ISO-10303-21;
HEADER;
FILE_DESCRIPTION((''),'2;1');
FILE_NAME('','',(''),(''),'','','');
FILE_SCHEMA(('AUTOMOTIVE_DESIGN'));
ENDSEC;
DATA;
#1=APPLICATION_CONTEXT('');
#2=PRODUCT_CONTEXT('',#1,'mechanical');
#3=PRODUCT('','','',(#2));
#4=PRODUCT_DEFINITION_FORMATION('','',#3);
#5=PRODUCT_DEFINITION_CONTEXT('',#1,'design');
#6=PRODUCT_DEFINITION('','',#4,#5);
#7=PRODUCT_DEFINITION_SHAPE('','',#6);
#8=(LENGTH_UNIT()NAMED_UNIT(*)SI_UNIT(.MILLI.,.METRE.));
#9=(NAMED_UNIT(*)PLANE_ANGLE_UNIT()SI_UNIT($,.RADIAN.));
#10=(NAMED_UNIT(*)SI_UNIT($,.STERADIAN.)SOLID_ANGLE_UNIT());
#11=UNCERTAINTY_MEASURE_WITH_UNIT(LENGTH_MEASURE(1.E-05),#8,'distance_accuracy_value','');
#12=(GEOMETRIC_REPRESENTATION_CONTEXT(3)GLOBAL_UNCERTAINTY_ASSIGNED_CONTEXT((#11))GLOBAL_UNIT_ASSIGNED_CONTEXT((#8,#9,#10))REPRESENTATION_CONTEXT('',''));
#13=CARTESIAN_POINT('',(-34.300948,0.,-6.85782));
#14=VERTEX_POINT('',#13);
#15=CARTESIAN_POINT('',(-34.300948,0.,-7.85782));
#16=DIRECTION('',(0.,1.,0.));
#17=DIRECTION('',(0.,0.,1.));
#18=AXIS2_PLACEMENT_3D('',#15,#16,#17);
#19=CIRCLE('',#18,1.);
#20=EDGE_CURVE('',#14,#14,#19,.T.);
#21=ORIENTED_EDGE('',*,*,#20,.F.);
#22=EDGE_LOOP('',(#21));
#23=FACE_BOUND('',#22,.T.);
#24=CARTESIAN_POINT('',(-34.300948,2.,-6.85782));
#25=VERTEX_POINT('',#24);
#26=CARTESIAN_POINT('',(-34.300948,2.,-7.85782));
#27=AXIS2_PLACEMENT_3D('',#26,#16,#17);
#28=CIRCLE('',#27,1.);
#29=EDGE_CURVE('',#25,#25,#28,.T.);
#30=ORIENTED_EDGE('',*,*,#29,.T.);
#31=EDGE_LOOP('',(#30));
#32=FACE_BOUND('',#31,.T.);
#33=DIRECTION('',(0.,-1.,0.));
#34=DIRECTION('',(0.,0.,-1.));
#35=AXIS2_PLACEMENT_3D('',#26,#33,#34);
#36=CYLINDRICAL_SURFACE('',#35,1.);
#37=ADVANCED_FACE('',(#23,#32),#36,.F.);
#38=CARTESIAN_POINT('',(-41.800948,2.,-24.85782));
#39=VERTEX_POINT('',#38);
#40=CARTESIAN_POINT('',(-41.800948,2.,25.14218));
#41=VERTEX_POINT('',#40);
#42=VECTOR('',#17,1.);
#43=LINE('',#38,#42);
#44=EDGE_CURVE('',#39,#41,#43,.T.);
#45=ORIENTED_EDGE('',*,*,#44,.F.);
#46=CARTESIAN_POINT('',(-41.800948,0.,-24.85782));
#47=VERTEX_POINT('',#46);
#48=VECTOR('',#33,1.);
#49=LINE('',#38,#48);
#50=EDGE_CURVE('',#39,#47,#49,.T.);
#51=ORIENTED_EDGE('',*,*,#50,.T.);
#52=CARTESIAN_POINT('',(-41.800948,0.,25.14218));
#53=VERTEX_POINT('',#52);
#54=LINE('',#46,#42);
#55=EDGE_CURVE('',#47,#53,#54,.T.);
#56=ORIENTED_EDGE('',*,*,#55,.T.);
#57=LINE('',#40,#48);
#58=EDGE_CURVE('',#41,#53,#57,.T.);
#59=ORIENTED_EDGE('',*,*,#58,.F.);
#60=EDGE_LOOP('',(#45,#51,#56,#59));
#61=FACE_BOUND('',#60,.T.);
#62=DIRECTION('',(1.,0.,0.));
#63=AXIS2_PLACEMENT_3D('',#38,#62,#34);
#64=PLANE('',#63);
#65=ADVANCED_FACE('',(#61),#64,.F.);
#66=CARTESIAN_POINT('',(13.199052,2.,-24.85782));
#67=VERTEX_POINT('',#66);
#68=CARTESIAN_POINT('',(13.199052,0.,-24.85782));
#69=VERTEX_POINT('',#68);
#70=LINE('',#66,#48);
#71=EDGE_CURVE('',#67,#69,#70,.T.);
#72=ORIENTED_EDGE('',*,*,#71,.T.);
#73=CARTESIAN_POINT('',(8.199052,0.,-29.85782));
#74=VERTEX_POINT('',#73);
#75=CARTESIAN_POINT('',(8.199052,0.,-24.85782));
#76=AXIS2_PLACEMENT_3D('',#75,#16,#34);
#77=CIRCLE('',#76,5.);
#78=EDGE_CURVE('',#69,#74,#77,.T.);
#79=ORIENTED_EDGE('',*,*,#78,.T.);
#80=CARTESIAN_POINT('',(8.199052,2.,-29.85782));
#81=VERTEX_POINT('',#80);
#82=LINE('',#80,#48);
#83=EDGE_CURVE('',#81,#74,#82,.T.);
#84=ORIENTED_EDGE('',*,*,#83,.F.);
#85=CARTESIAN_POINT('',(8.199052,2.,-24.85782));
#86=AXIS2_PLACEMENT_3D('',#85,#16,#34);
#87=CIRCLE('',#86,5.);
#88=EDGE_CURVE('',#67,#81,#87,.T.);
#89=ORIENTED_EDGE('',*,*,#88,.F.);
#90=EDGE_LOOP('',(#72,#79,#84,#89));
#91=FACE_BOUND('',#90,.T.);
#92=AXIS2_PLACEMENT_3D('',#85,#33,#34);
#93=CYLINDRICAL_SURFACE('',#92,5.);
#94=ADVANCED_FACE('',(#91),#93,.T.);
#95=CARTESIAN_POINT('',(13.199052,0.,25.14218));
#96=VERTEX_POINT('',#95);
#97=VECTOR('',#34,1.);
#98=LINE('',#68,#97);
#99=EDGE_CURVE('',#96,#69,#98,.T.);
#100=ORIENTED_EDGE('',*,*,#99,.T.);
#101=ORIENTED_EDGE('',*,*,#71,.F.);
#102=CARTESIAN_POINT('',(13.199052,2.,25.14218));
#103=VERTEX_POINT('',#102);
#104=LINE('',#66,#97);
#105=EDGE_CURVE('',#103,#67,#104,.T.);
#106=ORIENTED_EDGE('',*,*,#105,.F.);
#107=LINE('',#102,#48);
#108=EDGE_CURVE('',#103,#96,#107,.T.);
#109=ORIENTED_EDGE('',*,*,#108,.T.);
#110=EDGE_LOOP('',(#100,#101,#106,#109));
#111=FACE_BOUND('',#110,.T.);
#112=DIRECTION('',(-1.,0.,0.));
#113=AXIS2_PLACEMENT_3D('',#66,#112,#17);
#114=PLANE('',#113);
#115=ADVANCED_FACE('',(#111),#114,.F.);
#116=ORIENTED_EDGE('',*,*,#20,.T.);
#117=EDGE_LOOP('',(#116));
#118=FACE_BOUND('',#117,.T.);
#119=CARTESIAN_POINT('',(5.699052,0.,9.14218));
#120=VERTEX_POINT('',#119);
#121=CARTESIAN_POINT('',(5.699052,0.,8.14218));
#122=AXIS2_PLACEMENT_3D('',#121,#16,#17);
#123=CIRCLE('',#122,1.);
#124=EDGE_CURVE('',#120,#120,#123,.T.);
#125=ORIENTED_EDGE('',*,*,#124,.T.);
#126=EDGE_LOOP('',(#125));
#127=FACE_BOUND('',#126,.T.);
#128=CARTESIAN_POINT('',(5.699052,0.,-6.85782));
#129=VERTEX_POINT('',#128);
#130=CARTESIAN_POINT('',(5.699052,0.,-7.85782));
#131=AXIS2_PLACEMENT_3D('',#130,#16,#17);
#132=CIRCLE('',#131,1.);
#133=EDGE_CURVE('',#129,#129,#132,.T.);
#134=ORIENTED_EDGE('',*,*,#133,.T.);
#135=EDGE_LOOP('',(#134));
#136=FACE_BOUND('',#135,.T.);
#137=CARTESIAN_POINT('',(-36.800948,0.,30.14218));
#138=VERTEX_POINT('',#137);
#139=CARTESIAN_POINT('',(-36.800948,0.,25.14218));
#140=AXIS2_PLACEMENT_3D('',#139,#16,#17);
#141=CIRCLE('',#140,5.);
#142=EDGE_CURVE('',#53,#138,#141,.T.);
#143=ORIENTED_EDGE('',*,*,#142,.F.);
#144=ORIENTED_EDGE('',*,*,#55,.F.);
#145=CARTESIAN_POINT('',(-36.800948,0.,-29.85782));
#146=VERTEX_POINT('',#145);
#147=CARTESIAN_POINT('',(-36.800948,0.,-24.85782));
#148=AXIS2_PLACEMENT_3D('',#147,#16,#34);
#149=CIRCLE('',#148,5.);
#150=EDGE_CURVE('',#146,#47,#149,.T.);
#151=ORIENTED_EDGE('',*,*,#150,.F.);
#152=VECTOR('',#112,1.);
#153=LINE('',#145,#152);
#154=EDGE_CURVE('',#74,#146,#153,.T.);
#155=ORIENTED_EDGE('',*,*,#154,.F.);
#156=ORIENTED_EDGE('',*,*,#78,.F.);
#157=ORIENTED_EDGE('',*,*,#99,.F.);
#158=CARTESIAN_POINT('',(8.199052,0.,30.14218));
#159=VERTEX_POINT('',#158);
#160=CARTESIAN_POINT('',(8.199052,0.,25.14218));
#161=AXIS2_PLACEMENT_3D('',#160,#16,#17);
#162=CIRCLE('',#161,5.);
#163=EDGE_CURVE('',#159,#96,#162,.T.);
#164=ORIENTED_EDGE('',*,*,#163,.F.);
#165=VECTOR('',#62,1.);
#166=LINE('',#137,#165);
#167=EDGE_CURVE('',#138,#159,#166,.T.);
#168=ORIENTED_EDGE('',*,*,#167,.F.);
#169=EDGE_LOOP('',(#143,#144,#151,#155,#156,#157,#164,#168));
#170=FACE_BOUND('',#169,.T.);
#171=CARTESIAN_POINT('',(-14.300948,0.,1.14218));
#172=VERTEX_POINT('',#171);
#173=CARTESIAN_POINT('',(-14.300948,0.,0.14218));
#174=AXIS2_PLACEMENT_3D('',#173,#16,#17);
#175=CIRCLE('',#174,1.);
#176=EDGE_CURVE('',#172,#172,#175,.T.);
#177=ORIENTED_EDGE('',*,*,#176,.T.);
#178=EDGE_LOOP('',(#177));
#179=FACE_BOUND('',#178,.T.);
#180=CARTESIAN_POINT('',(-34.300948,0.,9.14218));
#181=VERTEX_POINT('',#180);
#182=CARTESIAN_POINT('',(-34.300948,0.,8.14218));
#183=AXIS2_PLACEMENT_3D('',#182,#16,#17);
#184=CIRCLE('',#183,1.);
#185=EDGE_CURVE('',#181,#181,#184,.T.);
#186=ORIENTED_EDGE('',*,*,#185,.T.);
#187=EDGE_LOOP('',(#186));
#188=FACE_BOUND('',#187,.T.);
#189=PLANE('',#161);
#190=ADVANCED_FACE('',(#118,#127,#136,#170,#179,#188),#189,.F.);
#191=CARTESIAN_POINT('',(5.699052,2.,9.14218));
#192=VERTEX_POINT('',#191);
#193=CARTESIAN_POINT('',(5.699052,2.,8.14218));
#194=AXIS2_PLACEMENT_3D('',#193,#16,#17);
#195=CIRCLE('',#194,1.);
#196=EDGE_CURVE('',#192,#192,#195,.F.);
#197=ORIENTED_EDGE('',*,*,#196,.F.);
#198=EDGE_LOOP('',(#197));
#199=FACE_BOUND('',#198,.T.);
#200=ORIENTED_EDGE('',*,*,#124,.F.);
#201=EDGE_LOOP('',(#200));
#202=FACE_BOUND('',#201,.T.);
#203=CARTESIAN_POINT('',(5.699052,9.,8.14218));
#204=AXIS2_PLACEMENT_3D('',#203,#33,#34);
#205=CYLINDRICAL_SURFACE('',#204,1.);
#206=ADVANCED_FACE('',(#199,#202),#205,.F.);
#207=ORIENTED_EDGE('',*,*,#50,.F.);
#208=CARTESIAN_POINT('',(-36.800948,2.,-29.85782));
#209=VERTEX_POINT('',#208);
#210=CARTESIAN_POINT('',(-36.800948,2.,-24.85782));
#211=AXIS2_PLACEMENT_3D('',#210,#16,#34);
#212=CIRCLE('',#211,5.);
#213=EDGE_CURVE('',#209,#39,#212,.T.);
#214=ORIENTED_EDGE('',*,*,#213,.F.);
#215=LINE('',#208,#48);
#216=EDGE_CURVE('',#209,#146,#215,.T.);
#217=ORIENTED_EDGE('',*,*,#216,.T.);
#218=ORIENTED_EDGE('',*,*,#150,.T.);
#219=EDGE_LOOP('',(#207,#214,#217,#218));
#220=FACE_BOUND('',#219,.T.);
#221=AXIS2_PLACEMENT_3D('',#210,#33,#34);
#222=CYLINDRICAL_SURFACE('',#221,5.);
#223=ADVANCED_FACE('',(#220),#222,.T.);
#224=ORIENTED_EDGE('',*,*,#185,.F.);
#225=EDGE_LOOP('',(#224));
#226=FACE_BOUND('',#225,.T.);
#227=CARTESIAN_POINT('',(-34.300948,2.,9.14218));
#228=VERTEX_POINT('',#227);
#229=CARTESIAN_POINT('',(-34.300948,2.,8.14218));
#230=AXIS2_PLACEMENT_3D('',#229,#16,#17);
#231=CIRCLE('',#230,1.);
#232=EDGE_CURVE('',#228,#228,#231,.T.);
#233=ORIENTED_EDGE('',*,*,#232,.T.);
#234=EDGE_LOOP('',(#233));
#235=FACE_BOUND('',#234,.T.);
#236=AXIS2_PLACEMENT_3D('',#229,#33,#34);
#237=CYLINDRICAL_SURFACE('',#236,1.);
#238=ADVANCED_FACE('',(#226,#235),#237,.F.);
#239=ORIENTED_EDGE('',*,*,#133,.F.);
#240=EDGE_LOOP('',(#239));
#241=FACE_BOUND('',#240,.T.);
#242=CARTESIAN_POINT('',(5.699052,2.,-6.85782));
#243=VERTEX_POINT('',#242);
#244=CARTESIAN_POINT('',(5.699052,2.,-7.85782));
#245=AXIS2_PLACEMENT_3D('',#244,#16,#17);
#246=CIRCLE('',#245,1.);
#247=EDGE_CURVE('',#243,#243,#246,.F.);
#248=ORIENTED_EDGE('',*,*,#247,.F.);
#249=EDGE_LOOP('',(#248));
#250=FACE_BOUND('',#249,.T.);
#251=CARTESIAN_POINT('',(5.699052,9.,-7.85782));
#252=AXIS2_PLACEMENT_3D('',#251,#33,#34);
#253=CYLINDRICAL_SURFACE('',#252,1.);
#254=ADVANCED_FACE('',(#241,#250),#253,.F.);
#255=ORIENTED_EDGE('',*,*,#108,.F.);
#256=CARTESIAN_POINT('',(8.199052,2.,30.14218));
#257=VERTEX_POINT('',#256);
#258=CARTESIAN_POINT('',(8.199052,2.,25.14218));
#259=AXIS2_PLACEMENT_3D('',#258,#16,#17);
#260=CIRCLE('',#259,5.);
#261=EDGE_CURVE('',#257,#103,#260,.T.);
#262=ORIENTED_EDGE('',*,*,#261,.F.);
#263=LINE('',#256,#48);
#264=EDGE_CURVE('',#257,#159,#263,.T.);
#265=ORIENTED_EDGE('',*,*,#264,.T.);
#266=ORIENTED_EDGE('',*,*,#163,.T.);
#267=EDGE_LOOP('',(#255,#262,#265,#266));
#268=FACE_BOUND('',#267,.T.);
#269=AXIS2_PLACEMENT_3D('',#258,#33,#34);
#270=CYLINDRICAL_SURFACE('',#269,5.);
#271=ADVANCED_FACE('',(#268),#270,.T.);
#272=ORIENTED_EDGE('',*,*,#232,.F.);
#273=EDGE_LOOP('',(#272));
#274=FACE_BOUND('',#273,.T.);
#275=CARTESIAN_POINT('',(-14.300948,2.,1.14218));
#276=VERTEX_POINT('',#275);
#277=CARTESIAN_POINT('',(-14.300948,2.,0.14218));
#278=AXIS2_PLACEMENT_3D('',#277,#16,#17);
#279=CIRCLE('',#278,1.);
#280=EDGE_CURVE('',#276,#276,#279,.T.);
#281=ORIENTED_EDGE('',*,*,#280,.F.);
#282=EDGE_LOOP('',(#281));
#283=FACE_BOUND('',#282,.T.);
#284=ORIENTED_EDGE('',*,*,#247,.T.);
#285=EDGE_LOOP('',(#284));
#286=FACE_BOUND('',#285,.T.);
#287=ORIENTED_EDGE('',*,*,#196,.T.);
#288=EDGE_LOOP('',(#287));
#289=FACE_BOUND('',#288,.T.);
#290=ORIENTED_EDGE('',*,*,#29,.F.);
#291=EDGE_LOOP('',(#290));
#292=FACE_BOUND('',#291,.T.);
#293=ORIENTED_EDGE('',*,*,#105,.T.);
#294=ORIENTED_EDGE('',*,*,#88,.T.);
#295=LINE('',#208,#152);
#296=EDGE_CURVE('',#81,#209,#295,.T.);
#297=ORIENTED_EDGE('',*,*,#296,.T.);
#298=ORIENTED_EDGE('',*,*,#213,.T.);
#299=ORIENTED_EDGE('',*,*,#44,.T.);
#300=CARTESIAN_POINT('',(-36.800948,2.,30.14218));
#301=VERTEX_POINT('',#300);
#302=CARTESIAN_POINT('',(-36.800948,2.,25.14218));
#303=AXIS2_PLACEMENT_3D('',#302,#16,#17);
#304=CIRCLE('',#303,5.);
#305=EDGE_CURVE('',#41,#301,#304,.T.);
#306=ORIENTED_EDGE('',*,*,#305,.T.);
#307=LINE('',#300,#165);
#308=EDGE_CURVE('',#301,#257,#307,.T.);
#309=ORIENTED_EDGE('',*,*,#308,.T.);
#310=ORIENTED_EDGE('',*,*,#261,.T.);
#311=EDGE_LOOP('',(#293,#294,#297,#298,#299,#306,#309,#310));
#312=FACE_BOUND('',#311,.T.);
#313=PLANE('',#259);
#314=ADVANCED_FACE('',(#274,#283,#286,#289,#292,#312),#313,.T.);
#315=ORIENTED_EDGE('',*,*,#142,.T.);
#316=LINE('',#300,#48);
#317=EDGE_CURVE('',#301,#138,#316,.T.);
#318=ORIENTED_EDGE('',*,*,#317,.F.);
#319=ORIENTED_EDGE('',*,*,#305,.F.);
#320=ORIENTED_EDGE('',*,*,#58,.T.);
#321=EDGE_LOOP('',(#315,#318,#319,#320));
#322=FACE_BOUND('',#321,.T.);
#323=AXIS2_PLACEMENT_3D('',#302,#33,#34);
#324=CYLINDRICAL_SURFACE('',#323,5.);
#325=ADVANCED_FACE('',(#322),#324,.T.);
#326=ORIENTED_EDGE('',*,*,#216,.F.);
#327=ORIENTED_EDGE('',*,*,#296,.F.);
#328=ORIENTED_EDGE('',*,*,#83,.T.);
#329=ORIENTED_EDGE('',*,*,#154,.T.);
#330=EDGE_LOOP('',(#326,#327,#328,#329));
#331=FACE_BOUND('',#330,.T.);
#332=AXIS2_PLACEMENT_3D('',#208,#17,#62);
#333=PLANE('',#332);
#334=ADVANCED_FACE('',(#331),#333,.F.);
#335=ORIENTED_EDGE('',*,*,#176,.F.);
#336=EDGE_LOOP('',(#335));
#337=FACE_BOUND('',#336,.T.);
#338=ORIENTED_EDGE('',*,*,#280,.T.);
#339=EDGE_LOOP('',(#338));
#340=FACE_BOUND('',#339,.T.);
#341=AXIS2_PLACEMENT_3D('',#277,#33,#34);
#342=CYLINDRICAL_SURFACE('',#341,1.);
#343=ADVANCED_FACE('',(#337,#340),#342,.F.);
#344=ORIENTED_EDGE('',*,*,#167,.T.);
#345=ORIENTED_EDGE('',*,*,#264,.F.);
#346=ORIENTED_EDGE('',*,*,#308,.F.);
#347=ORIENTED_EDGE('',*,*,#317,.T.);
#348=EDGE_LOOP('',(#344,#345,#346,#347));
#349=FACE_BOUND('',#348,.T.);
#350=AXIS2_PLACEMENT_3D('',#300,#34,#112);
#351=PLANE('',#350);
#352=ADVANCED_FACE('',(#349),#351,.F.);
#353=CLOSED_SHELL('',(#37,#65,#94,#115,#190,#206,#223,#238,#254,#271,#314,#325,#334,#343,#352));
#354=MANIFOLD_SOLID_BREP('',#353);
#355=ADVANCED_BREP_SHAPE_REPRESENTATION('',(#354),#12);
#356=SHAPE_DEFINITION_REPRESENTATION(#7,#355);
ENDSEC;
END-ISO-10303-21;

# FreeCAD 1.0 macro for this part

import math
import FreeCAD as App
import Part
import Sketcher
Q = App.Units.Quantity

doc = App.newDocument("Part")
body = doc.addObject("PartDesign::Body", "Body")

sketch1 = doc.addObject("Sketcher::SketchObject", "Sketch")
body.addObject(sketch1)
sketch1.AttachmentSupport = (doc.XZ_Plane, [""])
sketch1.MapMode = "FlatFace"
sketch1.addGeometry(Part.LineSegment(App.Vector(8.199052, -29.85782, 0), App.Vector(-36.800948, -29.85782, 0)), False)
sketch1.addGeometry(Part.ArcOfCircle(Part.Circle(App.Vector(-36.800948, -24.85782, 0), App.Vector(0, 0, 1), 5), math.radians(180), math.radians(270)), False)
sketch1.addGeometry(Part.LineSegment(App.Vector(-41.800948, -24.85782, 0), App.Vector(-41.800948, 25.14218, 0)), False)
sketch1.addGeometry(Part.ArcOfCircle(Part.Circle(App.Vector(-36.800948, 25.14218, 0), App.Vector(0, 0, 1), 5), math.radians(90), math.radians(180)), False)
sketch1.addGeometry(Part.LineSegment(App.Vector(-36.800948, 30.14218, 0), App.Vector(8.199052, 30.14218, 0)), False)
sketch1.addGeometry(Part.ArcOfCircle(Part.Circle(App.Vector(8.199052, 25.14218, 0), App.Vector(0, 0, 1), 5), math.radians(0), math.radians(90)), False)
sketch1.addGeometry(Part.LineSegment(App.Vector(13.199052, 25.14218, 0), App.Vector(13.199052, -24.85782, 0)), False)
sketch1.addGeometry(Part.ArcOfCircle(Part.Circle(App.Vector(8.199052, -24.85782, 0), App.Vector(0, 0, 1), 5), math.radians(-90), math.radians(0)), False)
sketch1.addGeometry(Part.Circle(App.Vector(-34.300948, 8.14218, 0), App.Vector(0, 0, 1), 1), False)
sketch1.addGeometry(Part.Circle(App.Vector(-14.300948, 0.14218, 0), App.Vector(0, 0, 1), 1), False)
sketch1.addGeometry(Part.Circle(App.Vector(-34.300948, -7.85782, 0), App.Vector(0, 0, 1), 1), False)
sketch1.addConstraint(Sketcher.Constraint("Tangent", 0, 2, 1, 2))
sketch1.addConstraint(Sketcher.Constraint("Tangent", 1, 1, 2, 1))
sketch1.addConstraint(Sketcher.Constraint("Tangent", 2, 2, 3, 2))
sketch1.addConstraint(Sketcher.Constraint("Tangent", 3, 1, 4, 1))
sketch1.addConstraint(Sketcher.Constraint("Tangent", 4, 2, 5, 2))
sketch1.addConstraint(Sketcher.Constraint("Tangent", 5, 1, 6, 1))
sketch1.addConstraint(Sketcher.Constraint("Tangent", 6, 2, 7, 2))
sketch1.addConstraint(Sketcher.Constraint("Tangent", 7, 1, 0, 1))
sketch1.addConstraint(Sketcher.Constraint("Horizontal", 0))
sketch1.addConstraint(Sketcher.Constraint("Vertical", 2))
sketch1.addConstraint(Sketcher.Constraint("Horizontal", 4))
sketch1.addConstraint(Sketcher.Constraint("Vertical", 6))
sketch1.addConstraint(Sketcher.Constraint("Equal", 1, 3))
sketch1.addConstraint(Sketcher.Constraint("Equal", 3, 5))
sketch1.addConstraint(Sketcher.Constraint("Equal", 5, 7))
sketch1.addConstraint(Sketcher.Constraint("Equal", 8, 9))
sketch1.addConstraint(Sketcher.Constraint("Equal", 9, 10))
sketch1.addConstraint(Sketcher.Constraint("Vertical", 8, 3, 10, 3))
sketch1.addConstraint(Sketcher.Constraint("Diameter", 8, Q("2 mm")))
sketch1.addConstraint(Sketcher.Constraint("Radius", 1, Q("5 mm")))
sketch1.addConstraint(Sketcher.Constraint("DistanceX", 0, 2, 0, 1, Q("45 mm")))
sketch1.addConstraint(Sketcher.Constraint("DistanceY", 2, 1, 2, 2, Q("50 mm")))
sketch1.addConstraint(Sketcher.Constraint("DistanceY", 8, 3, 3, 3, Q("17 mm")))
sketch1.addConstraint(Sketcher.Constraint("DistanceX", 8, 3, 9, 3, Q("20 mm")))
sketch1.addConstraint(Sketcher.Constraint("DistanceY", 9, 3, 8, 3, Q("8 mm")))
sketch1.addConstraint(Sketcher.Constraint("DistanceY", 10, 3, 8, 3, Q("16 mm")))
sketch1.addConstraint(Sketcher.Constraint("DistanceX", 3, 3, 8, 3, Q("2.5 mm")))
sketch1.addConstraint(Sketcher.Constraint("DistanceY", 1, 3, -1, 1, Q("24.85782 mm")))
sketch1.addConstraint(Sketcher.Constraint("DistanceX", 1, 3, -1, 1, Q("36.800948 mm")))
pad1 = doc.addObject("PartDesign::Pad", "Pad")
body.addObject(pad1)
pad1.Profile = sketch1
pad1.Length = 2
pad1.Reversed = True

sketch2 = doc.addObject("Sketcher::SketchObject", "Sketch001")
body.addObject(sketch2)
sketch2.AttachmentSupport = (doc.XZ_Plane, [""])
sketch2.MapMode = "FlatFace"
sketch2.addGeometry(Part.Circle(App.Vector(5.699052, -7.85782, 0), App.Vector(0, 0, 1), 1), False)
sketch2.addGeometry(Part.Circle(App.Vector(5.699052, 8.14218, 0), App.Vector(0, 0, 1), 1), False)
sketch2.addConstraint(Sketcher.Constraint("Equal", 0, 1))
sketch2.addConstraint(Sketcher.Constraint("Vertical", 0, 3, 1, 3))
sketch2.addConstraint(Sketcher.Constraint("Diameter", 0, Q("2 mm")))
sketch2.addConstraint(Sketcher.Constraint("DistanceY", 0, 3, 1, 3, Q("16 mm")))
sketch2.addConstraint(Sketcher.Constraint("DistanceY", 0, 3, -1, 1, Q("7.85782 mm")))
sketch2.addConstraint(Sketcher.Constraint("DistanceX", -1, 1, 0, 3, Q("5.699052 mm")))
pocket1 = doc.addObject("PartDesign::Pocket", "Pocket")
body.addObject(pocket1)
pocket1.Profile = sketch2
pocket1.Length = 9

doc.recompute()
